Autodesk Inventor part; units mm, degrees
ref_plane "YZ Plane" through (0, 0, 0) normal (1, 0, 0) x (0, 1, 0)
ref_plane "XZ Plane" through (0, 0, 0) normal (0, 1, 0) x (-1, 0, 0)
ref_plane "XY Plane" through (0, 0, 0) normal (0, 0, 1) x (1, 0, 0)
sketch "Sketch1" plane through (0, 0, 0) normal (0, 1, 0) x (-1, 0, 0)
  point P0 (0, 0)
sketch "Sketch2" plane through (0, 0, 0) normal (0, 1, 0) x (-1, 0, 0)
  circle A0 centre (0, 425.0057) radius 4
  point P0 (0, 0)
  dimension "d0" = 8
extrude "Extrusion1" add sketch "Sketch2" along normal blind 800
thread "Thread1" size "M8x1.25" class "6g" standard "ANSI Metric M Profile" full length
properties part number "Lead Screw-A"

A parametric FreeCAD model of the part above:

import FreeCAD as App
import Part
import Sketcher

doc = App.newDocument("Part")
body = doc.addObject("PartDesign::Body", "Body")

# Sketch on XZ plane
sketch1 = body.newObject("Sketcher::SketchObject", "Sketch")
sketch1.AttachmentSupport = (doc.getObject("XZ_Plane"), [""])
sketch1.MapMode = "FlatFace"
sketch1.addGeometry(Part.Circle(App.Vector(0, 425, 0), App.Vector(0, 0, 1), 4), False)
sketch1.addConstraint([
    Sketcher.Constraint("PointOnObject", 0, 3, -2),
    Sketcher.Constraint("Diameter", 0, 8.0),
    Sketcher.Constraint("DistanceY", -1, 1, 0, 3, 425.0057),
])
pad1 = body.newObject("PartDesign::Pad", "Pad")
pad1.Profile = sketch1
pad1.Length = 800
pad1.Reversed = True

doc.recompute()
